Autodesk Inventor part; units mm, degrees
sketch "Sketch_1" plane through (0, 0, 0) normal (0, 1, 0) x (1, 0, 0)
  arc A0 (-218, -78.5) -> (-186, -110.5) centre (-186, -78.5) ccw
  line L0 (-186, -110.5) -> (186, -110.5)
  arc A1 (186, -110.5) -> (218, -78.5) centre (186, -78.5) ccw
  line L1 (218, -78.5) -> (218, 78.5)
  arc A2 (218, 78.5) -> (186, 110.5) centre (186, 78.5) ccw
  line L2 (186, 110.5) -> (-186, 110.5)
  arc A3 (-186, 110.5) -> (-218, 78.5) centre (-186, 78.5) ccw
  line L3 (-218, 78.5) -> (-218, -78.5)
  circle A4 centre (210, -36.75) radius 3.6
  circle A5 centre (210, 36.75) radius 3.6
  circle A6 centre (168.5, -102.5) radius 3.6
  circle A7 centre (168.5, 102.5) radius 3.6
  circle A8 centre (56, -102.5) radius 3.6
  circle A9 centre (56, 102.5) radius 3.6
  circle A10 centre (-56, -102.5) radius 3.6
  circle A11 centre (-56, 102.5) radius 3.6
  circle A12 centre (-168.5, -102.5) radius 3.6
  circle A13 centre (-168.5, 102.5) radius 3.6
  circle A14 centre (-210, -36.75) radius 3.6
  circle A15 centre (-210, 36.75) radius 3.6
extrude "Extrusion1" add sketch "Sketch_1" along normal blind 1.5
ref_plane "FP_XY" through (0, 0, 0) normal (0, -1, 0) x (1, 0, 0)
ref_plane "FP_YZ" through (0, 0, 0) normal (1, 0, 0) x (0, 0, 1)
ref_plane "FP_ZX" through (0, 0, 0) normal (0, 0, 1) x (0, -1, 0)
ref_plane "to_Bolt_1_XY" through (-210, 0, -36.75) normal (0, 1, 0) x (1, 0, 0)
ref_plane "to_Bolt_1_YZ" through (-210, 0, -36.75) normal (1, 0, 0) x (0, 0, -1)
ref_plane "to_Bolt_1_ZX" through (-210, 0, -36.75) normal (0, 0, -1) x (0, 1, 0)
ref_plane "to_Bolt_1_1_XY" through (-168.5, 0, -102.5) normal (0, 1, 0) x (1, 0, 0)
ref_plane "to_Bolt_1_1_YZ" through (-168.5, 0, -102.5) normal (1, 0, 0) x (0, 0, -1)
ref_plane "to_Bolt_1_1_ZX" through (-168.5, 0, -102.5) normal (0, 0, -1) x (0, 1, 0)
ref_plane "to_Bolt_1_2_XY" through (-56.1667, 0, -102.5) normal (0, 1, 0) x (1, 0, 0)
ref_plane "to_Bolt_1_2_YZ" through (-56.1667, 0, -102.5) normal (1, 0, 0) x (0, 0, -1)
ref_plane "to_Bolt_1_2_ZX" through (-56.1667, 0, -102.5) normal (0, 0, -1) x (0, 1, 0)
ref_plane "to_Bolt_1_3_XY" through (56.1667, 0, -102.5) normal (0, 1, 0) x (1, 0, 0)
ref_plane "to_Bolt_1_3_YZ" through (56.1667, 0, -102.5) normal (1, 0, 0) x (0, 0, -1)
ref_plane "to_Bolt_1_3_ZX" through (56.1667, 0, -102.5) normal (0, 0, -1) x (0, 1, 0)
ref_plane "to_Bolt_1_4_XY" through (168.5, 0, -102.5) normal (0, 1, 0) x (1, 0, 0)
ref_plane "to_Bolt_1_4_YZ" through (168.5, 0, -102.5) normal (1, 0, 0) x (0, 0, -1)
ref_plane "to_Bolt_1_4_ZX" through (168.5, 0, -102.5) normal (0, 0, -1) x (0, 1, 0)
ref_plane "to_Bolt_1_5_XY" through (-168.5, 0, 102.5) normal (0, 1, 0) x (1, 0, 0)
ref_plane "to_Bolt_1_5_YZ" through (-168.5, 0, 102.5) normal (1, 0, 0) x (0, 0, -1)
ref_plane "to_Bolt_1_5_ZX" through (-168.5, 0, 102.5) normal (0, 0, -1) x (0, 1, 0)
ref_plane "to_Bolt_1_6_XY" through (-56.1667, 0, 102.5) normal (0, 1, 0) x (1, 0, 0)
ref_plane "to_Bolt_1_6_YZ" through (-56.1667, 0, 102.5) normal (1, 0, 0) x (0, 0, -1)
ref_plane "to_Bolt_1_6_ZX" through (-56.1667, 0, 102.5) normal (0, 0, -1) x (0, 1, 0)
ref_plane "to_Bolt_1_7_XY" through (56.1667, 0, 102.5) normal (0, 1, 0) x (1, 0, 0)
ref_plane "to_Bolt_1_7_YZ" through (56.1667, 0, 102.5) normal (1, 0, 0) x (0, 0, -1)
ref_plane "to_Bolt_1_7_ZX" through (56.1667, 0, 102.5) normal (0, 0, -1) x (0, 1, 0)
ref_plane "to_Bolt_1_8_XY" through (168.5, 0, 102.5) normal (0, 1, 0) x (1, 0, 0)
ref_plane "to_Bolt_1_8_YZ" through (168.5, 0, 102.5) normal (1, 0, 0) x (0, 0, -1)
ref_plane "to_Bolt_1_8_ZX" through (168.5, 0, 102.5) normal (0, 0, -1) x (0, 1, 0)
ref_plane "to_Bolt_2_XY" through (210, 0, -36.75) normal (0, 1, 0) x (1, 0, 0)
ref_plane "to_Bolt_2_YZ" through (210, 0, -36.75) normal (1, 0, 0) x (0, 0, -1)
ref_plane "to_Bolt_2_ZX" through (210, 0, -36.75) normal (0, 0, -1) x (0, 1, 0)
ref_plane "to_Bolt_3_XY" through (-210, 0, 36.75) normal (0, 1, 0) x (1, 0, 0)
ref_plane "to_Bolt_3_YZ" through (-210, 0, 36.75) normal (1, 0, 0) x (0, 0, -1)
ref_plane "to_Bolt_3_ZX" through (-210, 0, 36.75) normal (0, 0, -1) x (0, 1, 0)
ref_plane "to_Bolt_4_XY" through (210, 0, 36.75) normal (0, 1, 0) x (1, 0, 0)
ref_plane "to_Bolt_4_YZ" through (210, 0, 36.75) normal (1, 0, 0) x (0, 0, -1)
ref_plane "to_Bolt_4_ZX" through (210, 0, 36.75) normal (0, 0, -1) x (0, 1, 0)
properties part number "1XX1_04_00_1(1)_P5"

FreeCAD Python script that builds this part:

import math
import FreeCAD as App
import Part
import Sketcher

doc = App.newDocument("Part")
body = doc.addObject("PartDesign::Body", "Body")

sketch1 = body.newObject("Sketcher::SketchObject", "Sketch")
sketch1.AttachmentSupport = (doc.getObject("XZ_Plane"), [""])
sketch1.MapMode = "FlatFace"
sketch1.addGeometry(Part.LineSegment(App.Vector(-218, -78.5, 0), App.Vector(-218, 78.5, 0)), False)
sketch1.addGeometry(Part.ArcOfCircle(Part.Circle(App.Vector(-186, 78.5, 0), App.Vector(0, 0, 1), 32), math.radians(90), math.radians(180)), False)
sketch1.addGeometry(Part.LineSegment(App.Vector(-186, 110.5, 0), App.Vector(186, 110.5, 0)), False)
sketch1.addGeometry(Part.ArcOfCircle(Part.Circle(App.Vector(186, 78.5, 0), App.Vector(0, 0, 1), 32), math.radians(0), math.radians(90)), False)
sketch1.addGeometry(Part.LineSegment(App.Vector(218, 78.5, 0), App.Vector(218, -78.5, 0)), False)
sketch1.addGeometry(Part.ArcOfCircle(Part.Circle(App.Vector(186, -78.5, 0), App.Vector(0, 0, 1), 32), math.radians(-90), math.radians(0)), False)
sketch1.addGeometry(Part.LineSegment(App.Vector(186, -110.5, 0), App.Vector(-186, -110.5, 0)), False)
sketch1.addGeometry(Part.ArcOfCircle(Part.Circle(App.Vector(-186, -78.5, 0), App.Vector(0, 0, 1), 32), math.radians(180), math.radians(270)), False)
sketch1.addGeometry(Part.Circle(App.Vector(-168.5, 102.5, 0), App.Vector(0, 0, 1), 3.6), False)
sketch1.addGeometry(Part.Circle(App.Vector(-56, 102.5, 0), App.Vector(0, 0, 1), 3.6), False)
sketch1.addGeometry(Part.Circle(App.Vector(-210, 36.8, 0), App.Vector(0, 0, 1), 3.6), False)
sketch1.addGeometry(Part.Circle(App.Vector(56, 102.5, 0), App.Vector(0, 0, 1), 3.6), False)
sketch1.addGeometry(Part.Circle(App.Vector(168.5, 102.5, 0), App.Vector(0, 0, 1), 3.6), False)
sketch1.addGeometry(Part.Circle(App.Vector(210, 36.8, 0), App.Vector(0, 0, 1), 3.6), False)
sketch1.addGeometry(Part.Circle(App.Vector(-210, -36.8, 0), App.Vector(0, 0, 1), 3.6), False)
sketch1.addGeometry(Part.Circle(App.Vector(-168.5, -102.5, 0), App.Vector(0, 0, 1), 3.6), False)
sketch1.addGeometry(Part.Circle(App.Vector(-56, -102.5, 0), App.Vector(0, 0, 1), 3.6), False)
sketch1.addGeometry(Part.Circle(App.Vector(210, -36.8, 0), App.Vector(0, 0, 1), 3.6), False)
sketch1.addGeometry(Part.Circle(App.Vector(56, -102.5, 0), App.Vector(0, 0, 1), 3.6), False)
sketch1.addGeometry(Part.Circle(App.Vector(168.5, -102.5, 0), App.Vector(0, 0, 1), 3.6), False)
sketch1.addConstraint(Sketcher.Constraint("Tangent", 0, 2, 1, 2))
sketch1.addConstraint(Sketcher.Constraint("Tangent", 1, 1, 2, 1))
sketch1.addConstraint(Sketcher.Constraint("Tangent", 2, 2, 3, 2))
sketch1.addConstraint(Sketcher.Constraint("Tangent", 3, 1, 4, 1))
sketch1.addConstraint(Sketcher.Constraint("Tangent", 4, 2, 5, 2))
sketch1.addConstraint(Sketcher.Constraint("Tangent", 5, 1, 6, 1))
sketch1.addConstraint(Sketcher.Constraint("Tangent", 6, 2, 7, 2))
sketch1.addConstraint(Sketcher.Constraint("Tangent", 7, 1, 0, 1))
sketch1.addConstraint(Sketcher.Constraint("Vertical", 0))
sketch1.addConstraint(Sketcher.Constraint("Horizontal", 2))
sketch1.addConstraint(Sketcher.Constraint("Vertical", 4))
sketch1.addConstraint(Sketcher.Constraint("Horizontal", 6))
sketch1.addConstraint(Sketcher.Constraint("Equal", 1, 3))
sketch1.addConstraint(Sketcher.Constraint("Equal", 3, 5))
sketch1.addConstraint(Sketcher.Constraint("Equal", 5, 7))
sketch1.addConstraint(Sketcher.Constraint("Equal", 8, 9))
sketch1.addConstraint(Sketcher.Constraint("Equal", 9, 10))
sketch1.addConstraint(Sketcher.Constraint("Equal", 10, 11))
sketch1.addConstraint(Sketcher.Constraint("Equal", 11, 12))
sketch1.addConstraint(Sketcher.Constraint("Equal", 12, 13))
sketch1.addConstraint(Sketcher.Constraint("Equal", 13, 14))
sketch1.addConstraint(Sketcher.Constraint("Equal", 14, 15))
sketch1.addConstraint(Sketcher.Constraint("Equal", 15, 16))
sketch1.addConstraint(Sketcher.Constraint("Equal", 16, 17))
sketch1.addConstraint(Sketcher.Constraint("Equal", 17, 18))
sketch1.addConstraint(Sketcher.Constraint("Equal", 18, 19))
sketch1.addConstraint(Sketcher.Constraint("Symmetric", 1, 3, 5, 3, -1, 1))
sketch1.addConstraint(Sketcher.Constraint("Symmetric", 13, 3, 14, 3, -1, 1))
sketch1.addConstraint(Sketcher.Constraint("Symmetric", 12, 3, 15, 3, -1, 1))
sketch1.addConstraint(Sketcher.Constraint("Symmetric", 11, 3, 16, 3, -1, 1))
sketch1.addConstraint(Sketcher.Constraint("Symmetric", 10, 3, 17, 3, -1, 1))
sketch1.addConstraint(Sketcher.Constraint("Symmetric", 9, 3, 18, 3, -1, 1))
sketch1.addConstraint(Sketcher.Constraint("Symmetric", 8, 3, 19, 3, -1, 1))
sketch1.addConstraint(Sketcher.Constraint("Symmetric", 9, 3, 11, 3, -2))
sketch1.addConstraint(Sketcher.Constraint("Symmetric", 8, 3, 12, 3, -2))
sketch1.addConstraint(Sketcher.Constraint("Symmetric", 10, 3, 13, 3, -2))
sketch1.addConstraint(Sketcher.Constraint("Horizontal", 8, 3, 9, 3))
sketch1.addConstraint(Sketcher.Constraint("Radius", 1, 32.0))
sketch1.addConstraint(Sketcher.Constraint("Diameter", 8, 7.2))
sketch1.addConstraint(Sketcher.Constraint("DistanceX", 2, 1, 2, 2, 372.0))
sketch1.addConstraint(Sketcher.Constraint("DistanceY", 0, 1, 0, 2, 157.0))
sketch1.addConstraint(Sketcher.Constraint("DistanceX", 9, 3, -1, 1, 56.0))
sketch1.addConstraint(Sketcher.Constraint("DistanceX", 10, 3, -1, 1, 210.0))
sketch1.addConstraint(Sketcher.Constraint("DistanceY", 1, 3, 8, 3, 24.0))
sketch1.addConstraint(Sketcher.Constraint("DistanceX", 8, 3, 12, 3, 337.0))
sketch1.addConstraint(Sketcher.Constraint("DistanceY", 14, 3, 10, 3, 73.5))
pad1 = body.newObject("PartDesign::Pad", "Pad")
pad1.Profile = sketch1
pad1.Length = 1.5
pad1.Reversed = True

doc.recompute()
